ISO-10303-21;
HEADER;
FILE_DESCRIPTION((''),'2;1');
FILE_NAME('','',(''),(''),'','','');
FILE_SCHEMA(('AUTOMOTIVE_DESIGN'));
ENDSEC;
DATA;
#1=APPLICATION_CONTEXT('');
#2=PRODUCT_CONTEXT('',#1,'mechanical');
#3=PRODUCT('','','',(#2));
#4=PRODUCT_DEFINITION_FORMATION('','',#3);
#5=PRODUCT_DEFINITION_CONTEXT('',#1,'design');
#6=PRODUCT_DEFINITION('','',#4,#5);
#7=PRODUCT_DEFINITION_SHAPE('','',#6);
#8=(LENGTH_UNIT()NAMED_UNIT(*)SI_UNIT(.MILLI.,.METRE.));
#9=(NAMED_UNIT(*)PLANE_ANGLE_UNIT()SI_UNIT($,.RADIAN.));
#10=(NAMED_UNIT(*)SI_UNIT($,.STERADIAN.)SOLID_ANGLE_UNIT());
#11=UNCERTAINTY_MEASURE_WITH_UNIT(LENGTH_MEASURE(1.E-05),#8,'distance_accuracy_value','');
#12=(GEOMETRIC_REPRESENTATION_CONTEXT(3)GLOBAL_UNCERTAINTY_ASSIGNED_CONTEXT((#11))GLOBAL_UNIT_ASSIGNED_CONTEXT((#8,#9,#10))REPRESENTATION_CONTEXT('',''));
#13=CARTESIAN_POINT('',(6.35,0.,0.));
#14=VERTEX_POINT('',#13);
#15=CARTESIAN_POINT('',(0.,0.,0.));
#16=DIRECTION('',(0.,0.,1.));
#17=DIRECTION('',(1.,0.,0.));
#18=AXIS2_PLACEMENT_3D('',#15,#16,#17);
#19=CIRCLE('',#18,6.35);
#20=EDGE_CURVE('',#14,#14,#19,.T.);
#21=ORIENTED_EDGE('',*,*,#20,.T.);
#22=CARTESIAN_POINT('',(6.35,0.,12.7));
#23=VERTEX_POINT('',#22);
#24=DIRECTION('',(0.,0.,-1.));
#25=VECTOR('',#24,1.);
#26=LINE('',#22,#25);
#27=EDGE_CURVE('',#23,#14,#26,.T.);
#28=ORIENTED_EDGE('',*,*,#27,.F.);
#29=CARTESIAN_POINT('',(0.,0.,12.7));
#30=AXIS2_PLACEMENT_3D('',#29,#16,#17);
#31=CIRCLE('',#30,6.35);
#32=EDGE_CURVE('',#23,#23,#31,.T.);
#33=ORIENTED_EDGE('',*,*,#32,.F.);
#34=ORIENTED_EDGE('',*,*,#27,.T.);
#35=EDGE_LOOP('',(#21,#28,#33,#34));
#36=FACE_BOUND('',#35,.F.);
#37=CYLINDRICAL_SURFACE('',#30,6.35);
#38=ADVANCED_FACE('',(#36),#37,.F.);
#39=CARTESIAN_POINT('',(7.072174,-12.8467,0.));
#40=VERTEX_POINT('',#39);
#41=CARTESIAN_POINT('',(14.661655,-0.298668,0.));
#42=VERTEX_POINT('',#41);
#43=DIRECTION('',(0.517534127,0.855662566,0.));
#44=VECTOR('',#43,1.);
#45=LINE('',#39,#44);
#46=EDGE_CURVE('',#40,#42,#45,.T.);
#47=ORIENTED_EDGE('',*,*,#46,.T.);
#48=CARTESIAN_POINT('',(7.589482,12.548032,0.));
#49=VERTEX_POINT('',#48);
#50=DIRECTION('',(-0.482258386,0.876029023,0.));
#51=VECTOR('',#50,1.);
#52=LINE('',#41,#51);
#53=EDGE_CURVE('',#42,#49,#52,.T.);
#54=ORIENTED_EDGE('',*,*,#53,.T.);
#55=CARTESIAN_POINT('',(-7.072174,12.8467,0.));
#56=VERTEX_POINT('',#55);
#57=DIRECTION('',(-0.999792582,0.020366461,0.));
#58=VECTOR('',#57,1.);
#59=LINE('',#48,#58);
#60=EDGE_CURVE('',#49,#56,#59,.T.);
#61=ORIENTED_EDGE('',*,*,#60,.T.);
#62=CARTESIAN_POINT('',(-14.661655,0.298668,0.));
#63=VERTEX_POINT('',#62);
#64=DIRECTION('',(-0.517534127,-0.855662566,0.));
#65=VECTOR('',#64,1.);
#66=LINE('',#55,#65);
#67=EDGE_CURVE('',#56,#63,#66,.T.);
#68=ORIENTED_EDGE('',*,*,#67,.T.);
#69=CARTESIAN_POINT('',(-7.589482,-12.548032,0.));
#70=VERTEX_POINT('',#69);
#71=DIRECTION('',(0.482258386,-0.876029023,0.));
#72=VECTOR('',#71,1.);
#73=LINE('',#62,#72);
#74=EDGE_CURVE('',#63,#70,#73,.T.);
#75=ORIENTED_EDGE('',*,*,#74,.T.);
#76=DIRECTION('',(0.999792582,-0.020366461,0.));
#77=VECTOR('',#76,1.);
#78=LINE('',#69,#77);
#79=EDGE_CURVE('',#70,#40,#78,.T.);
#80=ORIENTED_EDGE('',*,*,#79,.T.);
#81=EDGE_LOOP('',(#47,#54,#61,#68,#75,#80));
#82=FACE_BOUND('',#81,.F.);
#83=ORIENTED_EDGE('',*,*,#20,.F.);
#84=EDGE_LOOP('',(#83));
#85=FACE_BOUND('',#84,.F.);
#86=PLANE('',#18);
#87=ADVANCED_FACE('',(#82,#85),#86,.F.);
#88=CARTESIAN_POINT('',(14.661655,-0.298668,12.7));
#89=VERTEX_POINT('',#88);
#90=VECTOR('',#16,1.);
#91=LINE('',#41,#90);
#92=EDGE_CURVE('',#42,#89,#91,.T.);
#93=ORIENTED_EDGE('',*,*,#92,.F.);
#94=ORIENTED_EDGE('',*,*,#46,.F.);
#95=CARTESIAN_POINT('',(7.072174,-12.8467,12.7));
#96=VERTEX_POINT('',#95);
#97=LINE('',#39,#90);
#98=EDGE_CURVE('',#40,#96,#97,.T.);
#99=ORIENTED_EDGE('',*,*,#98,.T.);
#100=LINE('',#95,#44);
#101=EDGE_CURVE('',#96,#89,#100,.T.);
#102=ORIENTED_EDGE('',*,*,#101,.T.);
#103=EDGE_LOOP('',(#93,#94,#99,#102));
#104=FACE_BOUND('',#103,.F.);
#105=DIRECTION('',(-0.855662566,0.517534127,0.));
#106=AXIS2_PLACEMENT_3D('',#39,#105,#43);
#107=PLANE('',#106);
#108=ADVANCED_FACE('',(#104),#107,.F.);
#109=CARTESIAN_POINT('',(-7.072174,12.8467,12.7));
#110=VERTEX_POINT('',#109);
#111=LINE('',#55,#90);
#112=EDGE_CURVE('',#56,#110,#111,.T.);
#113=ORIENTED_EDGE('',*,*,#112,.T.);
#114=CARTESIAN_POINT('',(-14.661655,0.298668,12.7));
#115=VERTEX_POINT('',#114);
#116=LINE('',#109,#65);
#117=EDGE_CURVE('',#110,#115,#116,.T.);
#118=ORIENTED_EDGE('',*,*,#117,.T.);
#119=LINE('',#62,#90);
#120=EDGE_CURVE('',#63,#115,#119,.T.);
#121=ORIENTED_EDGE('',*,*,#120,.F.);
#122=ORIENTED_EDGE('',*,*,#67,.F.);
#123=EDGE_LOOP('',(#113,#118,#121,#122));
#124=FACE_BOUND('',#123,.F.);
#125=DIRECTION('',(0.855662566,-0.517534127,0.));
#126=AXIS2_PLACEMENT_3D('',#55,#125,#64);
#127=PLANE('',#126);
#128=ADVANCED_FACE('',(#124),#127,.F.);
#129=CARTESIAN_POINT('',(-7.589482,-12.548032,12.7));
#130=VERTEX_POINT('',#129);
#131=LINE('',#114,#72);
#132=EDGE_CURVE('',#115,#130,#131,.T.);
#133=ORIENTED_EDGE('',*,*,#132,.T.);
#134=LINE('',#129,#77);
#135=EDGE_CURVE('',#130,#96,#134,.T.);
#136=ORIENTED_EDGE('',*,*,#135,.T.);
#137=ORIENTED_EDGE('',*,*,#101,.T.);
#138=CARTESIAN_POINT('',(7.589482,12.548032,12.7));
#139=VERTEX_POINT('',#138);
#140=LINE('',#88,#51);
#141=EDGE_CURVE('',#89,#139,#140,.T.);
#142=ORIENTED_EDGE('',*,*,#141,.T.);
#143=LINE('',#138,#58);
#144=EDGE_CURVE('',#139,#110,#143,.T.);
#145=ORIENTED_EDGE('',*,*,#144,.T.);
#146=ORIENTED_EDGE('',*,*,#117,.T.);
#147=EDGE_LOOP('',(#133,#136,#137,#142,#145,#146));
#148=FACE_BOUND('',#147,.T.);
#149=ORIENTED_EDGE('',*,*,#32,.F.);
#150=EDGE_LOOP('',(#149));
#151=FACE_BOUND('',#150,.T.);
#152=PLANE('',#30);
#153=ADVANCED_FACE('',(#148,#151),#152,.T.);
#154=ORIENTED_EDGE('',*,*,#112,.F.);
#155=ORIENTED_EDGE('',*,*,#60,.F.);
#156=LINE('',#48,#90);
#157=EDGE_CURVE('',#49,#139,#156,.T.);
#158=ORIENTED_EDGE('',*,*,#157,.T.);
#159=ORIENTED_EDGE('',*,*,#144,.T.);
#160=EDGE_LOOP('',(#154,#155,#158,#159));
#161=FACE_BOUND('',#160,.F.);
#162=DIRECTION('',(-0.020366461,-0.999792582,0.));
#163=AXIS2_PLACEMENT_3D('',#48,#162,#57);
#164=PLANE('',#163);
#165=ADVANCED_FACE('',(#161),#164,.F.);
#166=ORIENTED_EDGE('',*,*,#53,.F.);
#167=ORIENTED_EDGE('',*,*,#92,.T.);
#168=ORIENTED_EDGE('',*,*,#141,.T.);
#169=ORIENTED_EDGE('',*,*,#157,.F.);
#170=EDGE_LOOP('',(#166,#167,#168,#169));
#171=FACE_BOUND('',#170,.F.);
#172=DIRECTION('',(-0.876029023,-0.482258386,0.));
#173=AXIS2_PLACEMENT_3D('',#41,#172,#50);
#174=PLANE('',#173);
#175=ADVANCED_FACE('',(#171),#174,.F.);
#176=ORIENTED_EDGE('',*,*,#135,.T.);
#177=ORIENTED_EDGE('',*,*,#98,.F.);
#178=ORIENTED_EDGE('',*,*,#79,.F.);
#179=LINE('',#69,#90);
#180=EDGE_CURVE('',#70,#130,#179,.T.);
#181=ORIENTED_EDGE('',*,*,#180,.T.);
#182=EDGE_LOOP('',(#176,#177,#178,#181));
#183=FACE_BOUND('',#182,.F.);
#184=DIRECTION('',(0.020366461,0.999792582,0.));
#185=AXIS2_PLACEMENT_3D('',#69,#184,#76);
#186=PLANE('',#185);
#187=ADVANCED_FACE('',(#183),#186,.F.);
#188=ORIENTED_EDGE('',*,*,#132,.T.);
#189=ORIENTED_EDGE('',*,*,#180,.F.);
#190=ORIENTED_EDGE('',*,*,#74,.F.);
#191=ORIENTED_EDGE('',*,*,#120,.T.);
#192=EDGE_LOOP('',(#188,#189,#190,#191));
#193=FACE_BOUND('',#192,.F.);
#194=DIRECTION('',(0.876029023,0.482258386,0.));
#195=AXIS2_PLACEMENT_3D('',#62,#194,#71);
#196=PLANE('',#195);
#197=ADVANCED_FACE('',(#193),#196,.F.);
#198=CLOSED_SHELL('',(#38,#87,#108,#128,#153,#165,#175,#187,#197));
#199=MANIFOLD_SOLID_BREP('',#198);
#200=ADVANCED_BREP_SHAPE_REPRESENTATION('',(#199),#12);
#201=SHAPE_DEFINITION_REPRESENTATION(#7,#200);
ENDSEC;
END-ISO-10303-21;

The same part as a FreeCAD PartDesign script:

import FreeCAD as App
import Part
import Sketcher
from FreeCAD import Vector
Q = App.Units.Quantity


def add_polygon(sketch, points):
    """Adds a closed chain of lines whose ends are joined by coincident constraints."""
    first, n = sketch.GeometryCount, len(points)
    for a, b in zip(points, points[1:] + points[:1]):
        sketch.addGeometry(Part.LineSegment(App.Vector(*a, 0), App.Vector(*b, 0)), False)
    for i in range(n):
        sketch.addConstraint(Sketcher.Constraint("Coincident", first + i, 2, first + (i + 1) % n, 1))

doc = App.newDocument("Part")
body = doc.addObject("PartDesign::Body", "Body")

# Sketch on XY plane
sketch1 = doc.addObject("Sketcher::SketchObject", "Sketch")
body.addObject(sketch1)
sketch1.AttachmentSupport = (doc.XY_Plane, [""])
sketch1.MapMode = "FlatFace"
add_polygon(sketch1, [(15, 0), (8, 13), (-7, 13), (-15, 0), (-8, -13), (7, -13)])  # lines 0-5
sketch1.addConstraint([
    Sketcher.Constraint("Symmetric", 0, 2, 3, 2, -1, 1),
    Sketcher.Constraint("Symmetric", 1, 2, 4, 2, -1, 1),
    Sketcher.Constraint("Symmetric", 2, 2, 5, 2, -1, 1),
    Sketcher.Constraint("Equal", 0, 1),
    Sketcher.Constraint("Equal", 1, 2),
    Sketcher.Constraint("DistanceY", -1, 1, 1, 2, Q("12.8467 mm")),
    Sketcher.Constraint("DistanceY", 3, 2, 2, 2, Q("12.8467 mm")),
    Sketcher.Constraint("DistanceY", -1, 1, 0, 2, Q("12.548032 mm")),
    Sketcher.Constraint("DistanceX", 2, 2, 1, 2, Q("7.589481 mm")),
])
pad1 = doc.addObject("PartDesign::Pad", "Pad")
body.addObject(pad1)
pad1.Profile = sketch1
pad1.Length = Q("0.5 in")

# Sketch on XY plane
sketch2 = doc.addObject("Sketcher::SketchObject", "Sketch001")
body.addObject(sketch2)
sketch2.AttachmentSupport = (doc.XY_Plane, [""])
sketch2.MapMode = "FlatFace"
sketch2.AttachmentOffset = App.Placement(Vector(0, 0, 0.5 * 25.4), App.Rotation())
sketch2.addGeometry(Part.Circle(Vector(0, 0, 0), Vector(0, 0, 1), 6), False)
sketch2.addConstraint([
    Sketcher.Constraint("Coincident", 0, 3, -1, 1),
    Sketcher.Constraint("Diameter", 0, Q("0.5 in")),
])
pocket1 = doc.addObject("PartDesign::Pocket", "Pocket")
body.addObject(pocket1)
pocket1.Profile = sketch2
pocket1.Type = "ThroughAll"

doc.recompute()
